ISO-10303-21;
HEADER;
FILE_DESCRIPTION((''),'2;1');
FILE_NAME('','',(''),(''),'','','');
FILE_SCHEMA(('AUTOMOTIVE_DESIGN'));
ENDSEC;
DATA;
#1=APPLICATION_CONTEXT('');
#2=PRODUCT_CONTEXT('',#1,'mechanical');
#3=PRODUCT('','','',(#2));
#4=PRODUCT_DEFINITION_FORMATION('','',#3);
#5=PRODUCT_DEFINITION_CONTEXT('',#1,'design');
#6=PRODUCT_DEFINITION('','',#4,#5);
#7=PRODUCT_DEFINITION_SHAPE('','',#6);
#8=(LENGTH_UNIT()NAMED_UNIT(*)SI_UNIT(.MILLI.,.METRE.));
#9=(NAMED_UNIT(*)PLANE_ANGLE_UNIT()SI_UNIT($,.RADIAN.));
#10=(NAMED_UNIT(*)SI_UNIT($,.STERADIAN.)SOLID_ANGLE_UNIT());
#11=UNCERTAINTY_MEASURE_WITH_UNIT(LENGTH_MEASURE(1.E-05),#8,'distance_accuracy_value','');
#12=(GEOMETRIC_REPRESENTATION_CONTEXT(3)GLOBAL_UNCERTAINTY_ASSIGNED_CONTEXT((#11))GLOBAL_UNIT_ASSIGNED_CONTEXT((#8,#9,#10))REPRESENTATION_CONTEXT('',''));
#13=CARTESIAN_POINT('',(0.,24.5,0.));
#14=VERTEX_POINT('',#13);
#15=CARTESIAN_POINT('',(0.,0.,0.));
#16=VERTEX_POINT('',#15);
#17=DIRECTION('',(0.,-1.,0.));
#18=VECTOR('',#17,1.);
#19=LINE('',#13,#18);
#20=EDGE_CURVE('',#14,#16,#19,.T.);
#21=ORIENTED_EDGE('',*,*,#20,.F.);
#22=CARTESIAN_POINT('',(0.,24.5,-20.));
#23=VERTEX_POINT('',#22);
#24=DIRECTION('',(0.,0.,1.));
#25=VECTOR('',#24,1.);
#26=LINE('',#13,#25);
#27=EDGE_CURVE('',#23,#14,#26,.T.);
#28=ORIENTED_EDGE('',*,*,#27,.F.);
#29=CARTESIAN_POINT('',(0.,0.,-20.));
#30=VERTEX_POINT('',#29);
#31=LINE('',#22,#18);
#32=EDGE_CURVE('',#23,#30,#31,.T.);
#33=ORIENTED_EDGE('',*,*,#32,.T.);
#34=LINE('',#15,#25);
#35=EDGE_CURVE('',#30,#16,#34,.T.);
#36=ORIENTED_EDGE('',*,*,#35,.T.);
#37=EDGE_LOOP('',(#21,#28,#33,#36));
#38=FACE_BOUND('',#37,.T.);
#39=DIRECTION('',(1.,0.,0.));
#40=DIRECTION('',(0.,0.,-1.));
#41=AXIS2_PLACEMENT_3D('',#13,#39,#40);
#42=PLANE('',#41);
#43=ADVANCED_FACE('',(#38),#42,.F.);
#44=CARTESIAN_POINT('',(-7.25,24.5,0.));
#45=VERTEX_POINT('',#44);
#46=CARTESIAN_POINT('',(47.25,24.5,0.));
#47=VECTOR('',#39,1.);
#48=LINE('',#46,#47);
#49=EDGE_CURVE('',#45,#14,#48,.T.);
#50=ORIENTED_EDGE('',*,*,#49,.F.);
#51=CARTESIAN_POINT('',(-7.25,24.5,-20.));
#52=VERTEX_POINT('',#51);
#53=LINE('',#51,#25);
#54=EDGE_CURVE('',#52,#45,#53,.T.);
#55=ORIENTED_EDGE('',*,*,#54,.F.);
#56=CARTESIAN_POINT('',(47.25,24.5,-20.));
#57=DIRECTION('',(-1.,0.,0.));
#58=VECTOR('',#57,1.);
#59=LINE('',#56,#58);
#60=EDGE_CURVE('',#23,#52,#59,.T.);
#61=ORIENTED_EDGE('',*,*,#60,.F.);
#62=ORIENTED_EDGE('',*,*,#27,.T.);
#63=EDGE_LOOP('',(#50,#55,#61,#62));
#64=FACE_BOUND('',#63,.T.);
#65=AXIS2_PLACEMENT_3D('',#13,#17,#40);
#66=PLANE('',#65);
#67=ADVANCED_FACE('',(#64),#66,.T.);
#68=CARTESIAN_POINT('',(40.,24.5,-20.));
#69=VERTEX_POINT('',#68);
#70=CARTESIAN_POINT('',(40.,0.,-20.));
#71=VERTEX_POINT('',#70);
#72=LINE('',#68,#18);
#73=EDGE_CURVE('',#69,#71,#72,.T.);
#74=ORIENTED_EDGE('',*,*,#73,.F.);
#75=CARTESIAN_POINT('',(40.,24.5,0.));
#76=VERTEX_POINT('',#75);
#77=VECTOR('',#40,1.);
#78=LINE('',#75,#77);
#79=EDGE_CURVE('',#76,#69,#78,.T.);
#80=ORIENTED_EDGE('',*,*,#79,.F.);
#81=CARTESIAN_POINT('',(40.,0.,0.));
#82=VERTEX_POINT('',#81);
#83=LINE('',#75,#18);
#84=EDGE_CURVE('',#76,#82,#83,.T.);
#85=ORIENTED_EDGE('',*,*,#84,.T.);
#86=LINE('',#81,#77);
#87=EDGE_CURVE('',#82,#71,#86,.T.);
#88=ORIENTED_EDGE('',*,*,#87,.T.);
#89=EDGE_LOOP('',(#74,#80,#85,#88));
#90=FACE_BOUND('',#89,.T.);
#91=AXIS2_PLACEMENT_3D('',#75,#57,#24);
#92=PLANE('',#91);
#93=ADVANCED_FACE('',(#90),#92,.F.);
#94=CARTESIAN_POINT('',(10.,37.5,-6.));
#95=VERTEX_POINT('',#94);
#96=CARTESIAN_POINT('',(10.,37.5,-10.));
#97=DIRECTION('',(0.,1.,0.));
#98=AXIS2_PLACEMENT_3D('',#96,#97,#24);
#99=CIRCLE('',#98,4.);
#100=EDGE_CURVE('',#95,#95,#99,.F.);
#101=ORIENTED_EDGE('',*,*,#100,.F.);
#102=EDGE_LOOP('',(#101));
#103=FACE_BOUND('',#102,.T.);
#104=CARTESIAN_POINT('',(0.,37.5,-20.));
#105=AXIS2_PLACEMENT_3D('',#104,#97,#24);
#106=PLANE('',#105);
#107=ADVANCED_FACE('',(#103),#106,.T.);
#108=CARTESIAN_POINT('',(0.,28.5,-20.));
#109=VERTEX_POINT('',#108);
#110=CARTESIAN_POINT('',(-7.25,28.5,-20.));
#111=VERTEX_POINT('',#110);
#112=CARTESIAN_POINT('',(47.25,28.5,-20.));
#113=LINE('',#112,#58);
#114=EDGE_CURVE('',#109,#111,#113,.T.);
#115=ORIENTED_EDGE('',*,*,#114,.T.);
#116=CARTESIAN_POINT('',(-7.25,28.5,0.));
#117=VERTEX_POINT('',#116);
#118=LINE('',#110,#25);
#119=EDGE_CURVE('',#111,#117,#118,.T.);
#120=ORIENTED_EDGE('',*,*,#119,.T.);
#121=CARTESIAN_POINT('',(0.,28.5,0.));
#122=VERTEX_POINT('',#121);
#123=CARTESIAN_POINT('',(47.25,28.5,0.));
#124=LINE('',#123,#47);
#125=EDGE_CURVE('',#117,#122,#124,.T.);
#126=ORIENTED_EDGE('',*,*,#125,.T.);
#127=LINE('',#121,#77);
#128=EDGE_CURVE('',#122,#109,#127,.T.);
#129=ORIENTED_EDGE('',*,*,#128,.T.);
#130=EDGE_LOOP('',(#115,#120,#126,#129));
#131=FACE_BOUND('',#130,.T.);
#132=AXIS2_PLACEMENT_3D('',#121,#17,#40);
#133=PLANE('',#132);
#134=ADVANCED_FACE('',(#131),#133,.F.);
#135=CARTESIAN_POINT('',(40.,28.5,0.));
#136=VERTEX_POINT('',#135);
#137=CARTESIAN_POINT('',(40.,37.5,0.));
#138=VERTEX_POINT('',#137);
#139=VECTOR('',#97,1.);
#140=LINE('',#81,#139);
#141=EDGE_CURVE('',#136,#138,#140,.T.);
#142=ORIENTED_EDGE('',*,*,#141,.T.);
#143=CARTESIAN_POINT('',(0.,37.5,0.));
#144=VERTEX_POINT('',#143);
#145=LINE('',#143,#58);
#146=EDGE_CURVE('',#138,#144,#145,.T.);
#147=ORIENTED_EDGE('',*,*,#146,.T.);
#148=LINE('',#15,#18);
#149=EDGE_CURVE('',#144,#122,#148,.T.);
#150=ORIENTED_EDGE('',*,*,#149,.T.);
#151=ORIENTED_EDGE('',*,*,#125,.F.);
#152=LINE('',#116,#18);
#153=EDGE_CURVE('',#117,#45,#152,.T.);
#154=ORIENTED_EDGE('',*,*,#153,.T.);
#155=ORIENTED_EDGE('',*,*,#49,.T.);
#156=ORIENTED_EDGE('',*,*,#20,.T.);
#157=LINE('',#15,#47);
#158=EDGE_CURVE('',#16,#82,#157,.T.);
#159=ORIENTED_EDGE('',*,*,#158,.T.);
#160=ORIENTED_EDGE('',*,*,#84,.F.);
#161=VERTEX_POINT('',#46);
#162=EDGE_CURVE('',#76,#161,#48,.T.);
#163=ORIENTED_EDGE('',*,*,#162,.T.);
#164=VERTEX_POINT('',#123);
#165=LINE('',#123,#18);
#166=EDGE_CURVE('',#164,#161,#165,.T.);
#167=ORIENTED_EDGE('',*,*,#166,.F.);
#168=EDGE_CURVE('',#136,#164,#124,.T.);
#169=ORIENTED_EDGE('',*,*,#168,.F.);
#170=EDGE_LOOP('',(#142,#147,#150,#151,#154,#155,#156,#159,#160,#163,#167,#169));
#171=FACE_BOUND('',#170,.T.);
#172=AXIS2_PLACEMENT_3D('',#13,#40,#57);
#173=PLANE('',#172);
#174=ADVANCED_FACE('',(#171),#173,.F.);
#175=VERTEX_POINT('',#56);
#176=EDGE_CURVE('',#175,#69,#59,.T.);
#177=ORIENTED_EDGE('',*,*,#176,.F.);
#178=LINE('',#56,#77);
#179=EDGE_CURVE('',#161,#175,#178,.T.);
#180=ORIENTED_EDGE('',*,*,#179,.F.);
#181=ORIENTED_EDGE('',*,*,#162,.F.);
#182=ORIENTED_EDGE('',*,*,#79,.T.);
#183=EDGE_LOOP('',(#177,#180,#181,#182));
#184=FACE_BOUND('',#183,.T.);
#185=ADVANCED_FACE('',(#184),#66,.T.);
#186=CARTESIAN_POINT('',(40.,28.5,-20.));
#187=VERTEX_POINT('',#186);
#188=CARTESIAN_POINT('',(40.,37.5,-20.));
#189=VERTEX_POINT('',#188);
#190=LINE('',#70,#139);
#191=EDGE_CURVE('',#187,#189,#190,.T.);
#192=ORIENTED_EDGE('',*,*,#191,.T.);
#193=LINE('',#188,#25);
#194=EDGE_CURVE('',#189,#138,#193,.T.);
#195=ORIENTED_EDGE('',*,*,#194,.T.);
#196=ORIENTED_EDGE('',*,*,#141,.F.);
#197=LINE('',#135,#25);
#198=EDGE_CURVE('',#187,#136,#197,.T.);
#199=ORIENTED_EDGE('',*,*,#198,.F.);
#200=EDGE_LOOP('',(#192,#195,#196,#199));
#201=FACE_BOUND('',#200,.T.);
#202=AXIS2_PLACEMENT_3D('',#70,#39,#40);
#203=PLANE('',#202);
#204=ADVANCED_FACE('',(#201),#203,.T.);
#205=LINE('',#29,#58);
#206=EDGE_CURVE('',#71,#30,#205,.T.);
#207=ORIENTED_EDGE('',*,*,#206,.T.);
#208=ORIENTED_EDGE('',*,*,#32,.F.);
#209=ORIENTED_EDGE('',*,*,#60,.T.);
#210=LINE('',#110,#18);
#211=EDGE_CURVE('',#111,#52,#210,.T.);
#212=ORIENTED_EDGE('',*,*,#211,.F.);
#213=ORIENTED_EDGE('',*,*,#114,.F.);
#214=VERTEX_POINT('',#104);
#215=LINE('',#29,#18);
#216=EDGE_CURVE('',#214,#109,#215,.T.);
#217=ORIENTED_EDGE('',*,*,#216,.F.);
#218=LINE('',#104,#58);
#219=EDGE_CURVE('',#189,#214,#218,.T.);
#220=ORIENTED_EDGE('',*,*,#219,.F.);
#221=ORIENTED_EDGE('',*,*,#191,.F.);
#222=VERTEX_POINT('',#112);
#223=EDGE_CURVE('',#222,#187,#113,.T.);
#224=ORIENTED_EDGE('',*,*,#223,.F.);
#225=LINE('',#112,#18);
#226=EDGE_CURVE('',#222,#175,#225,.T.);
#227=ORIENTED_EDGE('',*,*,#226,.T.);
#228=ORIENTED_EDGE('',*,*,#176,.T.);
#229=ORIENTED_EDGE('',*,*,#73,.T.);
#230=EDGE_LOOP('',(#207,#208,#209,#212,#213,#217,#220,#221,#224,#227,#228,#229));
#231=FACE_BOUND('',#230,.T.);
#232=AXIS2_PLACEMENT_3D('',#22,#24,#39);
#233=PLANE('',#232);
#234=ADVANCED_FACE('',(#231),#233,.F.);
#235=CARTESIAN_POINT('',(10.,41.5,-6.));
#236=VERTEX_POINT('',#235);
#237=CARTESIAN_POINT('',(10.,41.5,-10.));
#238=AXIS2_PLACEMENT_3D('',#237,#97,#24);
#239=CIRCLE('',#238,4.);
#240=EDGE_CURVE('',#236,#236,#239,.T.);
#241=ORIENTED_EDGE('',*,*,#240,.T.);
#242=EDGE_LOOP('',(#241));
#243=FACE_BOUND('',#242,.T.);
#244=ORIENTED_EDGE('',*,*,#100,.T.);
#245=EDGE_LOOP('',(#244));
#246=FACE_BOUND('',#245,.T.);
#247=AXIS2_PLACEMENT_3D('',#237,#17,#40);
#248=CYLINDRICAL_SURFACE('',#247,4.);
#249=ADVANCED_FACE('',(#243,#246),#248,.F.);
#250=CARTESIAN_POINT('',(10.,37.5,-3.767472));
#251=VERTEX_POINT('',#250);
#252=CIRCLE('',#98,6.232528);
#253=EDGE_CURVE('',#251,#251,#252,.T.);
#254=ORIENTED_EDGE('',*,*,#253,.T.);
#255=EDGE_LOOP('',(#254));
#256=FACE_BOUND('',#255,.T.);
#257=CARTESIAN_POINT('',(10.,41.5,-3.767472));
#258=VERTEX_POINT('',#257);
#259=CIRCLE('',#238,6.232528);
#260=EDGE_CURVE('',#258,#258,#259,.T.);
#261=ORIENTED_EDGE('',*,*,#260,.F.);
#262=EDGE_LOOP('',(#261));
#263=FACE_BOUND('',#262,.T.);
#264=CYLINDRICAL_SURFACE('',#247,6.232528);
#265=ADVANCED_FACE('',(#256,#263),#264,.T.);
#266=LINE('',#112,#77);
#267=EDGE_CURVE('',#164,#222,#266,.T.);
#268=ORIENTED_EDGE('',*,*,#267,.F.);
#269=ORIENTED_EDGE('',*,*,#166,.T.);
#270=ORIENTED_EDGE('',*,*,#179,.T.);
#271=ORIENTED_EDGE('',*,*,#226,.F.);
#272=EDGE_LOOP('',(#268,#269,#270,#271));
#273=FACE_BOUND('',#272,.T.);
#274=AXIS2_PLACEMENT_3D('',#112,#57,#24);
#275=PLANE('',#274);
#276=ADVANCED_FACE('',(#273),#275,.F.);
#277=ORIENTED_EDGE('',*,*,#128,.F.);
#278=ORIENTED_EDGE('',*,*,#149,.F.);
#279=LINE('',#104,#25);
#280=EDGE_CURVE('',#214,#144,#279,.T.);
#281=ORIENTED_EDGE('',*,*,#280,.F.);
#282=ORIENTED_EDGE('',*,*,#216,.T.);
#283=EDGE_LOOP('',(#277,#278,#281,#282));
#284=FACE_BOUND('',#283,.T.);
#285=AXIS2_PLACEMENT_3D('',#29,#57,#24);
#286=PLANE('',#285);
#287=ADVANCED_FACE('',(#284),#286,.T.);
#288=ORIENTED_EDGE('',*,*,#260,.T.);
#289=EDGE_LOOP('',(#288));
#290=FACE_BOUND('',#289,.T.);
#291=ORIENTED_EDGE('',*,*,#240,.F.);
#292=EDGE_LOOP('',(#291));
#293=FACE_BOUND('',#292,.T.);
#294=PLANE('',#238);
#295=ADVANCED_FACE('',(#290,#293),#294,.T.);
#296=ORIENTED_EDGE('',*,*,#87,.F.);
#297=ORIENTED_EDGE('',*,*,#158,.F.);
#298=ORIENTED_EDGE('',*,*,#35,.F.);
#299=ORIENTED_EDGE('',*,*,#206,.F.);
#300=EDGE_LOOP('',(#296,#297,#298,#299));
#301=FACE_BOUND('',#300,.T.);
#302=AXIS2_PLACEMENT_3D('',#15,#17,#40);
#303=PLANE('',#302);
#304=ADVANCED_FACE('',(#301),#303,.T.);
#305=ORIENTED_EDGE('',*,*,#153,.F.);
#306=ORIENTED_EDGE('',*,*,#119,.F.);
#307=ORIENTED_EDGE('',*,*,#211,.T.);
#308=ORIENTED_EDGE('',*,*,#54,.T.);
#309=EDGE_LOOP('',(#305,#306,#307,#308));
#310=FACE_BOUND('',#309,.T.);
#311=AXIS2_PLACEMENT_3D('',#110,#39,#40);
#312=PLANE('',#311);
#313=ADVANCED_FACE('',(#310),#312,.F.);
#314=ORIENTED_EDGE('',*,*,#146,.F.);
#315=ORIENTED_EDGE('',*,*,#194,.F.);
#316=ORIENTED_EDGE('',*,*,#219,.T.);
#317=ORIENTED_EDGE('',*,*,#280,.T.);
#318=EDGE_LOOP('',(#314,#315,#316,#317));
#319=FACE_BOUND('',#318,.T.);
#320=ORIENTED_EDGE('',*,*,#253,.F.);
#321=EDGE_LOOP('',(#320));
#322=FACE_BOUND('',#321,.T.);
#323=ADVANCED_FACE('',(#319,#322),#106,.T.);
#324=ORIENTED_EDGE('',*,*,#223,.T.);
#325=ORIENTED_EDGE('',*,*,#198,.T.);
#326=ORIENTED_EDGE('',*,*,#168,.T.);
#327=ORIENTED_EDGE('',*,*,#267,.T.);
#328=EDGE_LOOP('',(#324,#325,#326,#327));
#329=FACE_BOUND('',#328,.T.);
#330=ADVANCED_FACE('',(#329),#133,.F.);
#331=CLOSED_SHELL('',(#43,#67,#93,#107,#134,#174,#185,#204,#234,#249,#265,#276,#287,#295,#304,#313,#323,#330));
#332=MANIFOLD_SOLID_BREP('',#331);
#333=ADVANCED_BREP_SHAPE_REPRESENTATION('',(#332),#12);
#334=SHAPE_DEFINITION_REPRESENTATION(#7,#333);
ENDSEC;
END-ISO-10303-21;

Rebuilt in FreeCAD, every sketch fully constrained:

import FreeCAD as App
import Part
import Sketcher
from FreeCAD import Vector
Q = App.Units.Quantity

doc = App.newDocument("Part")
body = doc.addObject("PartDesign::Body", "Body")

# Sketch on XZ plane
sketch1 = body.newObject("Sketcher::SketchObject", "Sketch")
sketch1.AttachmentSupport = (doc.getObject("XZ_Plane"), [""])
sketch1.MapMode = "FlatFace"
sketch1.addGeometry(Part.LineSegment(Vector(0, -20, 0), Vector(0, 0, 0)), False)
sketch1.addGeometry(Part.LineSegment(Vector(0, 0, 0), Vector(40, 0, 0)), False)
sketch1.addGeometry(Part.LineSegment(Vector(40, 0, 0), Vector(40, -20, 0)), False)
sketch1.addGeometry(Part.LineSegment(Vector(40, -20, 0), Vector(0, -20, 0)), False)
sketch1.addConstraint(Sketcher.Constraint("Coincident", 0, 2, 1, 1))
sketch1.addConstraint(Sketcher.Constraint("Coincident", 1, 2, 2, 1))
sketch1.addConstraint(Sketcher.Constraint("Coincident", 2, 2, 3, 1))
sketch1.addConstraint(Sketcher.Constraint("Coincident", 3, 2, 0, 1))
sketch1.addConstraint(Sketcher.Constraint("Vertical", 0))
sketch1.addConstraint(Sketcher.Constraint("Horizontal", 1))
sketch1.addConstraint(Sketcher.Constraint("Vertical", 2))
sketch1.addConstraint(Sketcher.Constraint("Horizontal", 3))
sketch1.addConstraint(Sketcher.Constraint("Coincident", 0, 2, -1, 1))
sketch1.addConstraint(Sketcher.Constraint("DistanceX", 1, 1, 1, 2, Q("40 mm")))
sketch1.addConstraint(Sketcher.Constraint("DistanceY", 0, 1, 0, 2, Q("20 mm")))
pad1 = body.newObject("PartDesign::Pad", "Pad")
pad1.Profile = sketch1
pad1.Length = 24.5
pad1.Reversed = True

# Sketch on XZ plane
sketch2 = body.newObject("Sketcher::SketchObject", "Sketch001")
sketch2.AttachmentSupport = (doc.getObject("XZ_Plane"), [""])
sketch2.MapMode = "FlatFace"
sketch2.AttachmentOffset = App.Placement(Vector(0, 0, -24.5), App.Rotation())
sketch2.addGeometry(Part.LineSegment(Vector(-7, -20, 0), Vector(-7, 0, 0)), False)
sketch2.addGeometry(Part.LineSegment(Vector(-7, 0, 0), Vector(47, 0, 0)), False)
sketch2.addGeometry(Part.LineSegment(Vector(47, 0, 0), Vector(47, -20, 0)), False)
sketch2.addGeometry(Part.LineSegment(Vector(47, -20, 0), Vector(-7, -20, 0)), False)
sketch2.addConstraint(Sketcher.Constraint("Coincident", 0, 2, 1, 1))
sketch2.addConstraint(Sketcher.Constraint("Coincident", 1, 2, 2, 1))
sketch2.addConstraint(Sketcher.Constraint("Coincident", 2, 2, 3, 1))
sketch2.addConstraint(Sketcher.Constraint("Coincident", 3, 2, 0, 1))
sketch2.addConstraint(Sketcher.Constraint("Vertical", 0))
sketch2.addConstraint(Sketcher.Constraint("Horizontal", 1))
sketch2.addConstraint(Sketcher.Constraint("Vertical", 2))
sketch2.addConstraint(Sketcher.Constraint("Horizontal", 3))
sketch2.addConstraint(Sketcher.Constraint("PointOnObject", 0, 2, -1))
sketch2.addConstraint(Sketcher.Constraint("DistanceY", 0, 1, 0, 2, Q("20 mm")))
sketch2.addConstraint(Sketcher.Constraint("DistanceX", 1, 1, 1, 2, Q("54.5 mm")))
sketch2.addConstraint(Sketcher.Constraint("DistanceX", 0, 2, -1, 1, Q("7.25 mm")))
pad2 = body.newObject("PartDesign::Pad", "Pad001")
pad2.Profile = sketch2
pad2.Length = 4
pad2.Reversed = True

# Sketch on XY plane
sketch3 = body.newObject("Sketcher::SketchObject", "Sketch002")
sketch3.AttachmentSupport = (doc.getObject("XY_Plane"), [""])
sketch3.MapMode = "FlatFace"
sketch3.addGeometry(Part.LineSegment(Vector(0, 38, 0), Vector(0, 0, 0)), False)
sketch3.addGeometry(Part.LineSegment(Vector(0, 0, 0), Vector(40, 0, 0)), False)
sketch3.addGeometry(Part.LineSegment(Vector(40, 0, 0), Vector(40, 38, 0)), False)
sketch3.addGeometry(Part.LineSegment(Vector(40, 38, 0), Vector(0, 38, 0)), False)
sketch3.addConstraint(Sketcher.Constraint("Coincident", 0, 2, 1, 1))
sketch3.addConstraint(Sketcher.Constraint("Coincident", 1, 2, 2, 1))
sketch3.addConstraint(Sketcher.Constraint("Coincident", 2, 2, 3, 1))
sketch3.addConstraint(Sketcher.Constraint("Coincident", 3, 2, 0, 1))
sketch3.addConstraint(Sketcher.Constraint("Vertical", 0))
sketch3.addConstraint(Sketcher.Constraint("Horizontal", 1))
sketch3.addConstraint(Sketcher.Constraint("Vertical", 2))
sketch3.addConstraint(Sketcher.Constraint("Horizontal", 3))
sketch3.addConstraint(Sketcher.Constraint("Coincident", 0, 2, -1, 1))
sketch3.addConstraint(Sketcher.Constraint("DistanceX", 1, 1, 1, 2, Q("40 mm")))
sketch3.addConstraint(Sketcher.Constraint("DistanceY", 0, 2, 0, 1, Q("37.5 mm")))
pad3 = body.newObject("PartDesign::Pad", "Pad002")
pad3.Profile = sketch3
pad3.Length = 20
pad3.Reversed = True

# Sketch on XZ plane
sketch4 = body.newObject("Sketcher::SketchObject", "Sketch003")
sketch4.AttachmentSupport = (doc.getObject("XZ_Plane"), [""])
sketch4.MapMode = "FlatFace"
sketch4.AttachmentOffset = App.Placement(Vector(0, 0, -37.5), App.Rotation())
sketch4.addGeometry(Part.Circle(Vector(10, -10, 0), Vector(0, 0, 1), 6.2), False)
sketch4.addGeometry(Part.Circle(Vector(10, -10, 0), Vector(0, 0, 1), 4), False)
sketch4.addConstraint(Sketcher.Constraint("Coincident", 1, 3, 0, 3))
sketch4.addConstraint(Sketcher.Constraint("Diameter", 1, Q("8 mm")))
sketch4.addConstraint(Sketcher.Constraint("DistanceX", -1, 1, 0, 3, Q("10 mm")))
sketch4.addConstraint(Sketcher.Constraint("DistanceY", 0, 3, -1, 1, Q("10 mm")))
sketch4.addConstraint(Sketcher.Constraint("Diameter", 0, Q("12.465056 mm")))
pad4 = body.newObject("PartDesign::Pad", "Pad003")
pad4.Profile = sketch4
pad4.Length = 4
pad4.Reversed = True

doc.recompute()
